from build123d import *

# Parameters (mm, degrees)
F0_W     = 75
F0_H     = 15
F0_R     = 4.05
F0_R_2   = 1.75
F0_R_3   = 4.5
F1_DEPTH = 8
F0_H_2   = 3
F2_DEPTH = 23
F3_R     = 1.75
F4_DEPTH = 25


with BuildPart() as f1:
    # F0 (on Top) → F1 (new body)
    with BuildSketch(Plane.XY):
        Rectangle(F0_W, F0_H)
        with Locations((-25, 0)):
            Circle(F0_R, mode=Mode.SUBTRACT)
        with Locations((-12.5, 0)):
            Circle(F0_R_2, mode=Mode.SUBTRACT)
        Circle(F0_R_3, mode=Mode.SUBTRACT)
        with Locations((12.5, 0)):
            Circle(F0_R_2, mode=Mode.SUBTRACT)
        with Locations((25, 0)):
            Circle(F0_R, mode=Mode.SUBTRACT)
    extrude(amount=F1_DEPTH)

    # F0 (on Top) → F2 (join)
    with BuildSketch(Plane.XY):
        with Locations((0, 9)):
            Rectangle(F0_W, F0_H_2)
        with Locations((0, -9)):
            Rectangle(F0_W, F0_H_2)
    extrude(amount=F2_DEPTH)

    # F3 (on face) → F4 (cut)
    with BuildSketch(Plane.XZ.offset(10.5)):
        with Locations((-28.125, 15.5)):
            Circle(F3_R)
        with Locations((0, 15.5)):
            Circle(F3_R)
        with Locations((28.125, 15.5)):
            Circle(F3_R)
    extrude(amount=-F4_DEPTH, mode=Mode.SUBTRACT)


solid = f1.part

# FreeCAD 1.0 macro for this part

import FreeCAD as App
import Part
import Sketcher
from FreeCAD import Vector

doc = App.newDocument("Part")
body = doc.addObject("PartDesign::Body", "Body")

# Sketch on XY plane
sketch1 = doc.addObject("Sketcher::SketchObject", "Sketch")
body.addObject(sketch1)
sketch1.AttachmentSupport = (doc.XY_Plane, [""])
sketch1.MapMode = "FlatFace"
sketch1.addGeometry([
    Part.LineSegment(Vector(-37.5, 7.5, 0), Vector(-37.5, -7.5, 0)),  # 0
    Part.LineSegment(Vector(-37.5, -7.5, 0), Vector(37.5, -7.5, 0)),  # 1
    Part.LineSegment(Vector(37.5, -7.5, 0), Vector(37.5, 7.5, 0)),  # 2
    Part.LineSegment(Vector(37.5, 7.5, 0), Vector(-37.5, 7.5, 0)),  # 3
    Part.Circle(Vector(-25, 0, 0), Vector(0, 0, 1), 4),  # 4
    Part.Circle(Vector(-12.5, 0, 0), Vector(0, 0, 1), 1.8),  # 5
    Part.Circle(Vector(0, 0, 0), Vector(0, 0, 1), 4.5),  # 6
    Part.Circle(Vector(12.5, 0, 0), Vector(0, 0, 1), 1.8),  # 7
    Part.Circle(Vector(25, 0, 0), Vector(0, 0, 1), 4),  # 8
], False)
sketch1.addConstraint([
    Sketcher.Constraint("Coincident", 0, 2, 1, 1),
    Sketcher.Constraint("Coincident", 1, 2, 2, 1),
    Sketcher.Constraint("Coincident", 2, 2, 3, 1),
    Sketcher.Constraint("Coincident", 3, 2, 0, 1),
    Sketcher.Constraint("Vertical", 0),
    Sketcher.Constraint("Horizontal", 1),
    Sketcher.Constraint("Vertical", 2),
    Sketcher.Constraint("Horizontal", 3),
    Sketcher.Constraint("Coincident", 6, 3, -1, 1),
    Sketcher.Constraint("Equal", 5, 7),
    Sketcher.Constraint("Equal", 4, 8),
    Sketcher.Constraint("Symmetric", 5, 3, 7, 3, -1, 1),
    Sketcher.Constraint("Symmetric", 4, 3, 8, 3, -1, 1),
    Sketcher.Constraint("Symmetric", 0, 2, 2, 2, -1, 1),
    Sketcher.Constraint("PointOnObject", 4, 3, -1),
    Sketcher.Constraint("PointOnObject", 5, 3, -1),
    Sketcher.Constraint("Diameter", 6, 9.0),
    Sketcher.Constraint("Diameter", 4, 8.1),
    Sketcher.Constraint("Diameter", 5, 3.5),
    Sketcher.Constraint("DistanceX", 1, 1, 1, 2, 75.0),
    Sketcher.Constraint("DistanceY", 0, 2, 0, 1, 15.0),
    Sketcher.Constraint("DistanceX", 4, 3, -1, 1, 25.0),
    Sketcher.Constraint("DistanceX", 5, 3, 7, 3, 25.0),
])
pad1 = doc.addObject("PartDesign::Pad", "Pad")
body.addObject(pad1)
pad1.Profile = sketch1
pad1.Length = 8

# Sketch on XY plane
sketch2 = doc.addObject("Sketcher::SketchObject", "Sketch001")
body.addObject(sketch2)
sketch2.AttachmentSupport = (doc.XY_Plane, [""])
sketch2.MapMode = "FlatFace"
sketch2.addGeometry([
    Part.LineSegment(Vector(-37.5, 10.5, 0), Vector(-37.5, 7.5, 0)),  # 0
    Part.LineSegment(Vector(-37.5, 7.5, 0), Vector(37.5, 7.5, 0)),  # 1
    Part.LineSegment(Vector(37.5, 7.5, 0), Vector(37.5, 10.5, 0)),  # 2
    Part.LineSegment(Vector(37.5, 10.5, 0), Vector(-37.5, 10.5, 0)),  # 3
    Part.LineSegment(Vector(-37.5, -7.5, 0), Vector(-37.5, -10.5, 0)),  # 4
    Part.LineSegment(Vector(-37.5, -10.5, 0), Vector(37.5, -10.5, 0)),  # 5
    Part.LineSegment(Vector(37.5, -10.5, 0), Vector(37.5, -7.5, 0)),  # 6
    Part.LineSegment(Vector(37.5, -7.5, 0), Vector(-37.5, -7.5, 0)),  # 7
], False)
sketch2.addConstraint([
    Sketcher.Constraint("Coincident", 0, 2, 1, 1),
    Sketcher.Constraint("Coincident", 1, 2, 2, 1),
    Sketcher.Constraint("Coincident", 2, 2, 3, 1),
    Sketcher.Constraint("Coincident", 3, 2, 0, 1),
    Sketcher.Constraint("Coincident", 4, 2, 5, 1),
    Sketcher.Constraint("Coincident", 5, 2, 6, 1),
    Sketcher.Constraint("Coincident", 6, 2, 7, 1),
    Sketcher.Constraint("Coincident", 7, 2, 4, 1),
    Sketcher.Constraint("Vertical", 0),
    Sketcher.Constraint("Horizontal", 1),
    Sketcher.Constraint("Vertical", 2),
    Sketcher.Constraint("Horizontal", 3),
    Sketcher.Constraint("Vertical", 4),
    Sketcher.Constraint("Horizontal", 5),
    Sketcher.Constraint("Vertical", 6),
    Sketcher.Constraint("Horizontal", 7),
    Sketcher.Constraint("Symmetric", 2, 2, 4, 2, -1, 1),
    Sketcher.Constraint("Symmetric", 0, 2, 6, 2, -1, 1),
    Sketcher.Constraint("Vertical", 3, 2, 4, 2),
    Sketcher.Constraint("DistanceX", 1, 1, 1, 2, 75.0),
    Sketcher.Constraint("DistanceY", 0, 2, 0, 1, 3.0),
    Sketcher.Constraint("DistanceY", 4, 2, 0, 2, 18.0),
])
pad2 = doc.addObject("PartDesign::Pad", "Pad001")
body.addObject(pad2)
pad2.Profile = sketch2
pad2.Length = 23

# Sketch on XZ plane
sketch3 = doc.addObject("Sketcher::SketchObject", "Sketch002")
body.addObject(sketch3)
sketch3.AttachmentSupport = (doc.XZ_Plane, [""])
sketch3.MapMode = "FlatFace"
sketch3.AttachmentOffset = App.Placement(Vector(0, 0, 10.5), App.Rotation())
sketch3.addGeometry([
    Part.Circle(Vector(-28.1, 15.5, 0), Vector(0, 0, 1), 1.8),
    Part.Circle(Vector(0, 15.5, 0), Vector(0, 0, 1), 1.8),
    Part.Circle(Vector(28.1, 15.5, 0), Vector(0, 0, 1), 1.8),
], False)
sketch3.addConstraint([
    Sketcher.Constraint("Equal", 0, 1),
    Sketcher.Constraint("Equal", 1, 2),
    Sketcher.Constraint("Symmetric", 0, 3, 2, 3, -2),
    Sketcher.Constraint("PointOnObject", 1, 3, -2),
    Sketcher.Constraint("Horizontal", 0, 3, 1, 3),
    Sketcher.Constraint("Diameter", 0, 3.5),
    Sketcher.Constraint("DistanceY", -1, 1, 0, 3, 15.5),
    Sketcher.Constraint("DistanceX", 0, 3, 2, 3, 56.25),
])
pocket1 = doc.addObject("PartDesign::Pocket", "Pocket")
body.addObject(pocket1)
pocket1.Profile = sketch3
pocket1.Length = 25

doc.recompute()
